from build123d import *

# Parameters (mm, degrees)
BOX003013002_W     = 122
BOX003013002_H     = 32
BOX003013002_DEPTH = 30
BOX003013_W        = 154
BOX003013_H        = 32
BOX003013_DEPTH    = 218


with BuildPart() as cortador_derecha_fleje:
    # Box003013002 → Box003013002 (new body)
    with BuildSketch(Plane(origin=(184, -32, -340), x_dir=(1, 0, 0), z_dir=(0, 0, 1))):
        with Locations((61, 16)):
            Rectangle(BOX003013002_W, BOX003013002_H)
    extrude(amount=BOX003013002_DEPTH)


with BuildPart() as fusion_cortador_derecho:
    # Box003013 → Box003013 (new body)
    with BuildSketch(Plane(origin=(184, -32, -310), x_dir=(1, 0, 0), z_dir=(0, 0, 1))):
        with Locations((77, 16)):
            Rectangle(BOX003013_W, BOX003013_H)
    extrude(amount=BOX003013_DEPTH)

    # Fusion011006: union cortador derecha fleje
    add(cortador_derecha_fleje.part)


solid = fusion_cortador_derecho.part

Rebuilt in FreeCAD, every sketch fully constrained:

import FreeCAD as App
import Part
import Sketcher

V = App.Vector

doc = App.newDocument("Part")
body = doc.addObject("PartDesign::Body", "Body")

sketch1 = doc.addObject("Sketcher::SketchObject", "Sketch")
body.addObject(sketch1)
sketch1.AttachmentSupport = (doc.XY_Plane, [""])
sketch1.MapMode = "FlatFace"
sketch1.AttachmentOffset = App.Placement(V(0, 0, -340), App.Rotation())
sketch1.addGeometry(Part.LineSegment(V(184, 0, 0), V(184, -32, 0)), False)
sketch1.addGeometry(Part.LineSegment(V(184, -32, 0), V(306, -32, 0)), False)
sketch1.addGeometry(Part.LineSegment(V(306, -32, 0), V(306, 0, 0)), False)
sketch1.addGeometry(Part.LineSegment(V(306, 0, 0), V(184, 0, 0)), False)
sketch1.addConstraint(Sketcher.Constraint("Coincident", 0, 2, 1, 1))
sketch1.addConstraint(Sketcher.Constraint("Coincident", 1, 2, 2, 1))
sketch1.addConstraint(Sketcher.Constraint("Coincident", 2, 2, 3, 1))
sketch1.addConstraint(Sketcher.Constraint("Coincident", 3, 2, 0, 1))
sketch1.addConstraint(Sketcher.Constraint("Vertical", 0))
sketch1.addConstraint(Sketcher.Constraint("Horizontal", 1))
sketch1.addConstraint(Sketcher.Constraint("Vertical", 2))
sketch1.addConstraint(Sketcher.Constraint("Horizontal", 3))
sketch1.addConstraint(Sketcher.Constraint("PointOnObject", 2, 2, -1))
sketch1.addConstraint(Sketcher.Constraint("DistanceX", 1, 1, 1, 2, 122.0))
sketch1.addConstraint(Sketcher.Constraint("DistanceY", 0, 2, 0, 1, 32.0))
sketch1.addConstraint(Sketcher.Constraint("DistanceX", -1, 1, 0, 2, 184.0))
pad1 = doc.addObject("PartDesign::Pad", "Pad")
body.addObject(pad1)
pad1.Profile = sketch1
pad1.Length = 30
body2 = doc.addObject("PartDesign::Body", "Body001")

sketch2 = doc.addObject("Sketcher::SketchObject", "Sketch001")
body2.addObject(sketch2)
sketch2.AttachmentSupport = (doc.getObject("XY_Plane001"), [""])
sketch2.MapMode = "FlatFace"
sketch2.AttachmentOffset = App.Placement(V(0, 0, -310), App.Rotation())
sketch2.addGeometry(Part.LineSegment(V(184, 0, 0), V(184, -32, 0)), False)
sketch2.addGeometry(Part.LineSegment(V(184, -32, 0), V(338, -32, 0)), False)
sketch2.addGeometry(Part.LineSegment(V(338, -32, 0), V(338, 0, 0)), False)
sketch2.addGeometry(Part.LineSegment(V(338, 0, 0), V(184, 0, 0)), False)
sketch2.addConstraint(Sketcher.Constraint("Coincident", 0, 2, 1, 1))
sketch2.addConstraint(Sketcher.Constraint("Coincident", 1, 2, 2, 1))
sketch2.addConstraint(Sketcher.Constraint("Coincident", 2, 2, 3, 1))
sketch2.addConstraint(Sketcher.Constraint("Coincident", 3, 2, 0, 1))
sketch2.addConstraint(Sketcher.Constraint("Vertical", 0))
sketch2.addConstraint(Sketcher.Constraint("Horizontal", 1))
sketch2.addConstraint(Sketcher.Constraint("Vertical", 2))
sketch2.addConstraint(Sketcher.Constraint("Horizontal", 3))
sketch2.addConstraint(Sketcher.Constraint("PointOnObject", 2, 2, -1))
sketch2.addConstraint(Sketcher.Constraint("DistanceX", 1, 1, 1, 2, 154.0))
sketch2.addConstraint(Sketcher.Constraint("DistanceY", 0, 2, 0, 1, 32.0))
sketch2.addConstraint(Sketcher.Constraint("DistanceX", -1, 1, 0, 2, 184.0))
pad2 = doc.addObject("PartDesign::Pad", "Pad001")
body2.addObject(pad2)
pad2.Profile = sketch2
pad2.Length = 218
doc.recompute()

boolean = doc.addObject("PartDesign::Boolean", "Boolean")
body2.addObject(boolean)
boolean.Type = "Fuse"
boolean.addObjects([body])

doc.recompute()
